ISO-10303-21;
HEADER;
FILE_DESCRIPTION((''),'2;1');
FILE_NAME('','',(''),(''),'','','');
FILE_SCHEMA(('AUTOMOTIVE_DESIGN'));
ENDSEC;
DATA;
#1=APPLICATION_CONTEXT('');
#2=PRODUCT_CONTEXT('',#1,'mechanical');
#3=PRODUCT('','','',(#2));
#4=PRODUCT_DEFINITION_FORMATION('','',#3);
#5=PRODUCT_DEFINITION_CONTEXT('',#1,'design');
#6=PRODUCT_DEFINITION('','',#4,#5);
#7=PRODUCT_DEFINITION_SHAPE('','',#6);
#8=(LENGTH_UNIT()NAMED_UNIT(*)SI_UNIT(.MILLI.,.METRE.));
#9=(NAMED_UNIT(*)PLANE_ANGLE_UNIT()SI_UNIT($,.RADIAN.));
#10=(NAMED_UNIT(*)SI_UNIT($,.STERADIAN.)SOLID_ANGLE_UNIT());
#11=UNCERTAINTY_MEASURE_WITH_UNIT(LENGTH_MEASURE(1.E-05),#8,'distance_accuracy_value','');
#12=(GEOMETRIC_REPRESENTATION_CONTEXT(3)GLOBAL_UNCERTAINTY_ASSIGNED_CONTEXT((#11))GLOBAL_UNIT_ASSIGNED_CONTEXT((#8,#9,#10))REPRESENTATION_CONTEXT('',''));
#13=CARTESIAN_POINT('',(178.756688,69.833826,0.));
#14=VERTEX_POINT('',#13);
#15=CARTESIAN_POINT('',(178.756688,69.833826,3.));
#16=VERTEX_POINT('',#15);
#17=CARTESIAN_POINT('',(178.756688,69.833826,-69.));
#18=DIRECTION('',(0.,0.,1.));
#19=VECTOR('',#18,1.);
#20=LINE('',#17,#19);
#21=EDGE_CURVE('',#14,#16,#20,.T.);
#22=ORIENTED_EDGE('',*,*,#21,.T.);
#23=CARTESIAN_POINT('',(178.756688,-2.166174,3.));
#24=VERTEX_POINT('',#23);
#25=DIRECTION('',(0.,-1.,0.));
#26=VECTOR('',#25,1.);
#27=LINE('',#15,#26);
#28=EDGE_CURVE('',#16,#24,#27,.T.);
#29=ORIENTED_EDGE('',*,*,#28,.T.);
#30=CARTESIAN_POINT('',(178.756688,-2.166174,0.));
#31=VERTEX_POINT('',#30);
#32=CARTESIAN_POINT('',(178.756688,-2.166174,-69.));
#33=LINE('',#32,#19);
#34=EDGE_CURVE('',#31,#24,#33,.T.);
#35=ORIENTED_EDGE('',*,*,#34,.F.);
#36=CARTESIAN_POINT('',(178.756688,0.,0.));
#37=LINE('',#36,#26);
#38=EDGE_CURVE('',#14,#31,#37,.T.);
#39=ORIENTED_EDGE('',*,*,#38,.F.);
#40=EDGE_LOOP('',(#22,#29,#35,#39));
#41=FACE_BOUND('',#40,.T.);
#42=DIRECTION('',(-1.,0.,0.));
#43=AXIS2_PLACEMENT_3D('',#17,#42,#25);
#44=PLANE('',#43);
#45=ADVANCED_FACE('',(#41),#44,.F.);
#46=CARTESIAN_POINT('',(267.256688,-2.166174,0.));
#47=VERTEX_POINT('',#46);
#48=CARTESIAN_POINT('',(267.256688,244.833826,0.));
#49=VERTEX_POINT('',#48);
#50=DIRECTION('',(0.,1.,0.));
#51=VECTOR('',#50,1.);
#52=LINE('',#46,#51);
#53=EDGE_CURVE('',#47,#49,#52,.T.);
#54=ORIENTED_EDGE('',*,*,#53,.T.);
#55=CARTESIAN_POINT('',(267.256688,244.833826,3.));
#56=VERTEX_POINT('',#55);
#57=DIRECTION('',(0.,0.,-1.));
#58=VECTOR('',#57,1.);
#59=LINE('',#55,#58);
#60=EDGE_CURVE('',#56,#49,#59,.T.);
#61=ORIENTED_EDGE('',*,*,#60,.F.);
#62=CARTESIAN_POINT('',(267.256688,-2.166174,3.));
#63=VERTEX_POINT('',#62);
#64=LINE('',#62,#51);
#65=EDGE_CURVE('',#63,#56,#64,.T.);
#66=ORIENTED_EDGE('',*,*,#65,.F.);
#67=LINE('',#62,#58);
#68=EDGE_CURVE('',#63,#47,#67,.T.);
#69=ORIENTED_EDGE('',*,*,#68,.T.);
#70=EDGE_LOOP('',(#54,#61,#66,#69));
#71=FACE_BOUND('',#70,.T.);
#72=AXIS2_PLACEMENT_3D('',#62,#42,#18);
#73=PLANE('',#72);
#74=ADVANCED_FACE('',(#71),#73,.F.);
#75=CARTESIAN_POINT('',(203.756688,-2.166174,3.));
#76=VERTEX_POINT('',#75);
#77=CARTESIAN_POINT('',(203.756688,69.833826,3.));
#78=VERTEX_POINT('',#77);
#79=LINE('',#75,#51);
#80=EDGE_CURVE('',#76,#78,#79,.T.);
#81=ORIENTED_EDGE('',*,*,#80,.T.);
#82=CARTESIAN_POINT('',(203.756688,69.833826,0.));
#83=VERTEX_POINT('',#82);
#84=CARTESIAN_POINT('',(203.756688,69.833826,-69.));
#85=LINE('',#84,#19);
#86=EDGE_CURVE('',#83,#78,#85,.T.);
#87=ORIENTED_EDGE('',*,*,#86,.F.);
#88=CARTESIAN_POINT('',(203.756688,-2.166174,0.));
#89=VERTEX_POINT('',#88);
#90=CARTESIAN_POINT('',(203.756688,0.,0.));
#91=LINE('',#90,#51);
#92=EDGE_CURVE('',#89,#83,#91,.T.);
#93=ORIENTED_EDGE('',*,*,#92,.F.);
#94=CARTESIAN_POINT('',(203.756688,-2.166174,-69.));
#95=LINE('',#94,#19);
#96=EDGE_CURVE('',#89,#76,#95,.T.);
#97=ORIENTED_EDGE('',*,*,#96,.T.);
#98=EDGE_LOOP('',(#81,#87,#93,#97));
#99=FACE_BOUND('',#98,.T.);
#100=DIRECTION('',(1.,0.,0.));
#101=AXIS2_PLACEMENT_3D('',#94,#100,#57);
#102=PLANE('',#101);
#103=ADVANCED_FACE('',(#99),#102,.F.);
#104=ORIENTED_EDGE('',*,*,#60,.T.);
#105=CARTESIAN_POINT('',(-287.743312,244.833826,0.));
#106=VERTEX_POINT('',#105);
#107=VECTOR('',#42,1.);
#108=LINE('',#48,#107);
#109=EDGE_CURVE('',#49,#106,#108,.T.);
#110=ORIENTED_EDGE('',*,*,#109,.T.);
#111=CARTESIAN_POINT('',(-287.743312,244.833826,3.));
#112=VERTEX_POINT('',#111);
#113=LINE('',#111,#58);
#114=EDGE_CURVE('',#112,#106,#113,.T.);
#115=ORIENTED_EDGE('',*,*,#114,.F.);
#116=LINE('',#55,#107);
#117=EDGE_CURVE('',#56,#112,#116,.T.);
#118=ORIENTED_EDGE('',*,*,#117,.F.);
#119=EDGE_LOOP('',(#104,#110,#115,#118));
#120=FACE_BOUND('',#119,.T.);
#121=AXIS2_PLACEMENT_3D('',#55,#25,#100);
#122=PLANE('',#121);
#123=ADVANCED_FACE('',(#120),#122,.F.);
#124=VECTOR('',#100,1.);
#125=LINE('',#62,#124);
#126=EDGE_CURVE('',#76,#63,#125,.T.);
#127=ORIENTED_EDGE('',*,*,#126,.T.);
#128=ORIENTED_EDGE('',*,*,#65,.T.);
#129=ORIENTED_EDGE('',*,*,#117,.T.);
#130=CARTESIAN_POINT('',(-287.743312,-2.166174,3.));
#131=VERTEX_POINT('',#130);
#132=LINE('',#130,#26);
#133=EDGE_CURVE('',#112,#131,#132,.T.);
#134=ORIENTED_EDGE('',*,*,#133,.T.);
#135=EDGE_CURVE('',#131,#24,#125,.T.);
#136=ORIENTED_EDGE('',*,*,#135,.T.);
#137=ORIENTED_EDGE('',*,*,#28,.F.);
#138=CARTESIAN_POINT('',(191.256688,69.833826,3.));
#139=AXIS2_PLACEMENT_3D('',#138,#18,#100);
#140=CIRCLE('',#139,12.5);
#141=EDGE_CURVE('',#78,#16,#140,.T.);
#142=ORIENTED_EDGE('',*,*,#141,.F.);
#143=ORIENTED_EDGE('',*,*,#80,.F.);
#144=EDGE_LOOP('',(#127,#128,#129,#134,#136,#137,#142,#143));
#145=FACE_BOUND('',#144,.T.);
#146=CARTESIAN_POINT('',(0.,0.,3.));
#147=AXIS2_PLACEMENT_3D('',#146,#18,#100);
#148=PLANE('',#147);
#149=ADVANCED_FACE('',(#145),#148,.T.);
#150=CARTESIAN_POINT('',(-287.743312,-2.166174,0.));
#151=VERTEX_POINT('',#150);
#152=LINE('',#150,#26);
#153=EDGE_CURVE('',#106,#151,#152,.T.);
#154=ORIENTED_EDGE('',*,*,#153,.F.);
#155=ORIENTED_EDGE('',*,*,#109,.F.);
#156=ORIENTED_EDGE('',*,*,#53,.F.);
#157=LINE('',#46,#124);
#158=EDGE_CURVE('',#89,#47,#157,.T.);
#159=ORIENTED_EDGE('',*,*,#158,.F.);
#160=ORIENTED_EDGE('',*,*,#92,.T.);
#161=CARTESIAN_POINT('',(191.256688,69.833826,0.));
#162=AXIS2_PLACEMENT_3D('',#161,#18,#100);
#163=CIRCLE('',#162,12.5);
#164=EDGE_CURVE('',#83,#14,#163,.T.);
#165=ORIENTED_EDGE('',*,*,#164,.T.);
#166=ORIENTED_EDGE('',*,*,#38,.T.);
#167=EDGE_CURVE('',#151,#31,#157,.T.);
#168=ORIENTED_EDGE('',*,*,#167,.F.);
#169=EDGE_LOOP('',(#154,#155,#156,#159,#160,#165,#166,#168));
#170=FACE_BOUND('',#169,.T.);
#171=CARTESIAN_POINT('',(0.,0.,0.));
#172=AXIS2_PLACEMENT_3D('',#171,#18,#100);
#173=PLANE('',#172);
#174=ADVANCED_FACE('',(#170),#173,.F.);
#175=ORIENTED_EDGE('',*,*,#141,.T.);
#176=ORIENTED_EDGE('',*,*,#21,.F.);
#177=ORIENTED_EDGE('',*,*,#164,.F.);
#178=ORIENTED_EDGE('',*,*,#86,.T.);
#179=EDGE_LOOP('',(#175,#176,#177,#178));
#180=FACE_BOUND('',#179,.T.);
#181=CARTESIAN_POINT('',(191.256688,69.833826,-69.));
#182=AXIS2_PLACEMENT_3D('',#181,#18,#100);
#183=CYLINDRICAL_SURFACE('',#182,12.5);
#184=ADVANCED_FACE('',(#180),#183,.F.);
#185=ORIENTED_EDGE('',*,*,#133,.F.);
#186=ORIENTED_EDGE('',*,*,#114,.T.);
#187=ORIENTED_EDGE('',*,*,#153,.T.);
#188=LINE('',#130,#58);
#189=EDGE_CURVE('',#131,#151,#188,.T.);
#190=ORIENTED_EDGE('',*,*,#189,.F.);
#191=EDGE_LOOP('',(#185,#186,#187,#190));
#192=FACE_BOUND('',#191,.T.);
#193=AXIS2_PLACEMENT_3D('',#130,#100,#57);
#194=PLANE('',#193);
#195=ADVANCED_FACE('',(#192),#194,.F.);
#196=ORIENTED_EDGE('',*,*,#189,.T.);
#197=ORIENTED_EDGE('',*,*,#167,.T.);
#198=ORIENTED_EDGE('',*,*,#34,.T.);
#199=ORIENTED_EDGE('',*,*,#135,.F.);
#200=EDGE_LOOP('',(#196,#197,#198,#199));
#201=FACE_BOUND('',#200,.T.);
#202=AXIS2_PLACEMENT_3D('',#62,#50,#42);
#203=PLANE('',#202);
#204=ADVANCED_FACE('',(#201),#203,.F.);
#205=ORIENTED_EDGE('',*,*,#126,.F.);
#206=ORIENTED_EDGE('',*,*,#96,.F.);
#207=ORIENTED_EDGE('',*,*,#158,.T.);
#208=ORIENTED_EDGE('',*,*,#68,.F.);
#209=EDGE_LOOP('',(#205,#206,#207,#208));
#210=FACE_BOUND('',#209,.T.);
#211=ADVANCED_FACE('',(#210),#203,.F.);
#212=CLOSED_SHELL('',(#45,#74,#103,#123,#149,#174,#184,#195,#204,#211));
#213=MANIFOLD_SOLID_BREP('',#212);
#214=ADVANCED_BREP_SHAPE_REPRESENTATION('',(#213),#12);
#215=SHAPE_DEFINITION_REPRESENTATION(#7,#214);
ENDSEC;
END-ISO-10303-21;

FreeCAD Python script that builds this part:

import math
import FreeCAD as App
import Part
import Sketcher

V = App.Vector
Q = App.Units.Quantity

doc = App.newDocument("Part")
body = doc.addObject("PartDesign::Body", "Body")

sketch1 = body.newObject("Sketcher::SketchObject", "Sketch")
sketch1.AttachmentSupport = (doc.getObject("XY_Plane"), [""])
sketch1.MapMode = "FlatFace"
sketch1.addGeometry([
    Part.LineSegment(V(-287.743312, 244.833826, 0), V(-287.743312, -2.166174, 0)),
    Part.LineSegment(V(-287.743312, -2.166174, 0), V(267.256688, -2.166174, 0)),
    Part.LineSegment(V(267.256688, -2.166174, 0), V(267.256688, 244.833826, 0)),
    Part.LineSegment(V(267.256688, 244.833826, 0), V(-287.743312, 244.833826, 0)),
], False)
sketch1.addConstraint([
    Sketcher.Constraint("Coincident", 0, 2, 1, 1),
    Sketcher.Constraint("Coincident", 1, 2, 2, 1),
    Sketcher.Constraint("Coincident", 2, 2, 3, 1),
    Sketcher.Constraint("Coincident", 3, 2, 0, 1),
    Sketcher.Constraint("Vertical", 0),
    Sketcher.Constraint("Horizontal", 1),
    Sketcher.Constraint("Vertical", 2),
    Sketcher.Constraint("Horizontal", 3),
    Sketcher.Constraint("DistanceX", 1, 1, 1, 2, Q("555 mm")),
    Sketcher.Constraint("DistanceY", 0, 2, 0, 1, Q("247 mm")),
    Sketcher.Constraint("DistanceX", 0, 2, -1, 1, Q("287.743312 mm")),
    Sketcher.Constraint("DistanceY", 0, 2, -1, 1, Q("2.166174 mm")),
])
pad1 = body.newObject("PartDesign::Pad", "Pad")
pad1.Profile = sketch1
pad1.Length = 3

sketch2 = body.newObject("Sketcher::SketchObject", "Sketch001")
sketch2.AttachmentSupport = (doc.getObject("XY_Plane"), [""])
sketch2.MapMode = "FlatFace"
sketch2.AttachmentOffset = App.Placement(V(0, 0, 3), App.Rotation())
sketch2.addGeometry([
    Part.LineSegment(V(178.756688, 69.833826, 0), V(178.756688, -2.166174, 0)),
    Part.LineSegment(V(178.756688, -2.166174, 0), V(203.756688, -2.166174, 0)),
    Part.LineSegment(V(203.756688, -2.166174, 0), V(203.756688, 69.833826, 0)),
    Part.ArcOfCircle(Part.Circle(V(191.256688, 69.833826, 0), V(0, 0, 1), 12.5), math.radians(0), math.radians(180)),
], False)
sketch2.addConstraint([
    Sketcher.Constraint("Coincident", 0, 2, 1, 1),
    Sketcher.Constraint("Coincident", 1, 2, 2, 1),
    Sketcher.Constraint("Tangent", 2, 2, 3, 1),
    Sketcher.Constraint("Tangent", 3, 2, 0, 1),
    Sketcher.Constraint("Vertical", 0),
    Sketcher.Constraint("Horizontal", 1),
    Sketcher.Constraint("Vertical", 2),
    Sketcher.Constraint("Radius", 3, Q("12.5 mm")),
    Sketcher.Constraint("DistanceY", 0, 2, 0, 1, Q("72 mm")),
    Sketcher.Constraint("DistanceX", -1, 1, 3, 3, Q("191.256688 mm")),
    Sketcher.Constraint("DistanceY", -1, 1, 3, 3, Q("69.833826 mm")),
])
pocket1 = body.newObject("PartDesign::Pocket", "Pocket")
pocket1.Profile = sketch2
pocket1.Length = 72

doc.recompute()
